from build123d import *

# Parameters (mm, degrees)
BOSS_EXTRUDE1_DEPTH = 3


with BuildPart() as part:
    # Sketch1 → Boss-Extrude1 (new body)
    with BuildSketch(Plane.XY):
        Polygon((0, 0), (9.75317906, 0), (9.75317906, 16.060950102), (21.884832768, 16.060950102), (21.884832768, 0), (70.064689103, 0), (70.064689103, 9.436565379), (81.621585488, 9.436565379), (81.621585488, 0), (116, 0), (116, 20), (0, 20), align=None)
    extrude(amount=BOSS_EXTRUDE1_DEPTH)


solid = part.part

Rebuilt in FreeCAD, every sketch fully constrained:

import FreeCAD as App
import Part
import Sketcher

doc = App.newDocument("Part")
body = doc.addObject("PartDesign::Body", "Body")

# Sketch on XY plane
sketch1 = body.newObject("Sketcher::SketchObject", "Sketch")
sketch1.AttachmentSupport = (doc.getObject("XY_Plane"), [""])
sketch1.MapMode = "FlatFace"
sketch1.addGeometry([
    Part.LineSegment(App.Vector(0, 0, 0), App.Vector(10, 0, 0)),  # 0
    Part.LineSegment(App.Vector(10, 0, 0), App.Vector(10, 16, 0)),  # 1
    Part.LineSegment(App.Vector(10, 16, 0), App.Vector(22, 16, 0)),  # 2
    Part.LineSegment(App.Vector(22, 16, 0), App.Vector(22, 0, 0)),  # 3
    Part.LineSegment(App.Vector(22, 0, 0), App.Vector(70, 0, 0)),  # 4
    Part.LineSegment(App.Vector(70, 0, 0), App.Vector(70, 9, 0)),  # 5
    Part.LineSegment(App.Vector(70, 9, 0), App.Vector(82, 9, 0)),  # 6
    Part.LineSegment(App.Vector(82, 9, 0), App.Vector(82, 0, 0)),  # 7
    Part.LineSegment(App.Vector(82, 0, 0), App.Vector(116, 0, 0)),  # 8
    Part.LineSegment(App.Vector(116, 0, 0), App.Vector(116, 20, 0)),  # 9
    Part.LineSegment(App.Vector(116, 20, 0), App.Vector(0, 20, 0)),  # 10
    Part.LineSegment(App.Vector(0, 20, 0), App.Vector(0, 0, 0)),  # 11
], False)
sketch1.addConstraint([
    Sketcher.Constraint("Coincident", 0, 2, 1, 1),
    Sketcher.Constraint("Coincident", 1, 2, 2, 1),
    Sketcher.Constraint("Coincident", 2, 2, 3, 1),
    Sketcher.Constraint("Coincident", 3, 2, 4, 1),
    Sketcher.Constraint("Coincident", 4, 2, 5, 1),
    Sketcher.Constraint("Coincident", 5, 2, 6, 1),
    Sketcher.Constraint("Coincident", 6, 2, 7, 1),
    Sketcher.Constraint("Coincident", 7, 2, 8, 1),
    Sketcher.Constraint("Coincident", 8, 2, 9, 1),
    Sketcher.Constraint("Coincident", 9, 2, 10, 1),
    Sketcher.Constraint("Coincident", 10, 2, 11, 1),
    Sketcher.Constraint("Coincident", 11, 2, 0, 1),
    Sketcher.Constraint("Horizontal", 0),
    Sketcher.Constraint("Vertical", 1),
    Sketcher.Constraint("Horizontal", 2),
    Sketcher.Constraint("Vertical", 3),
    Sketcher.Constraint("Horizontal", 4),
    Sketcher.Constraint("Vertical", 5),
    Sketcher.Constraint("Horizontal", 6),
    Sketcher.Constraint("Vertical", 7),
    Sketcher.Constraint("Horizontal", 8),
    Sketcher.Constraint("Vertical", 9),
    Sketcher.Constraint("Horizontal", 10),
    Sketcher.Constraint("Vertical", 11),
    Sketcher.Constraint("Coincident", 11, 2, -1, 1),
    Sketcher.Constraint("PointOnObject", 3, 2, -1),
    Sketcher.Constraint("PointOnObject", 7, 2, -1),
    Sketcher.Constraint("DistanceX", 10, 2, 10, 1, 116.0),
    Sketcher.Constraint("DistanceY", 9, 1, 9, 2, 20.0),
    Sketcher.Constraint("DistanceX", 0, 1, 0, 2, 9.753179),
    Sketcher.Constraint("DistanceY", 1, 1, 1, 2, 16.06095),
    Sketcher.Constraint("DistanceX", 2, 1, 2, 2, 12.131654),
    Sketcher.Constraint("DistanceX", 4, 1, 4, 2, 48.179856),
    Sketcher.Constraint("DistanceX", 6, 1, 6, 2, 11.556896),
    Sketcher.Constraint("DistanceY", 5, 1, 5, 2, 9.436565),
])
pad1 = body.newObject("PartDesign::Pad", "Pad")
pad1.Profile = sketch1
pad1.Length = 3

doc.recompute()
